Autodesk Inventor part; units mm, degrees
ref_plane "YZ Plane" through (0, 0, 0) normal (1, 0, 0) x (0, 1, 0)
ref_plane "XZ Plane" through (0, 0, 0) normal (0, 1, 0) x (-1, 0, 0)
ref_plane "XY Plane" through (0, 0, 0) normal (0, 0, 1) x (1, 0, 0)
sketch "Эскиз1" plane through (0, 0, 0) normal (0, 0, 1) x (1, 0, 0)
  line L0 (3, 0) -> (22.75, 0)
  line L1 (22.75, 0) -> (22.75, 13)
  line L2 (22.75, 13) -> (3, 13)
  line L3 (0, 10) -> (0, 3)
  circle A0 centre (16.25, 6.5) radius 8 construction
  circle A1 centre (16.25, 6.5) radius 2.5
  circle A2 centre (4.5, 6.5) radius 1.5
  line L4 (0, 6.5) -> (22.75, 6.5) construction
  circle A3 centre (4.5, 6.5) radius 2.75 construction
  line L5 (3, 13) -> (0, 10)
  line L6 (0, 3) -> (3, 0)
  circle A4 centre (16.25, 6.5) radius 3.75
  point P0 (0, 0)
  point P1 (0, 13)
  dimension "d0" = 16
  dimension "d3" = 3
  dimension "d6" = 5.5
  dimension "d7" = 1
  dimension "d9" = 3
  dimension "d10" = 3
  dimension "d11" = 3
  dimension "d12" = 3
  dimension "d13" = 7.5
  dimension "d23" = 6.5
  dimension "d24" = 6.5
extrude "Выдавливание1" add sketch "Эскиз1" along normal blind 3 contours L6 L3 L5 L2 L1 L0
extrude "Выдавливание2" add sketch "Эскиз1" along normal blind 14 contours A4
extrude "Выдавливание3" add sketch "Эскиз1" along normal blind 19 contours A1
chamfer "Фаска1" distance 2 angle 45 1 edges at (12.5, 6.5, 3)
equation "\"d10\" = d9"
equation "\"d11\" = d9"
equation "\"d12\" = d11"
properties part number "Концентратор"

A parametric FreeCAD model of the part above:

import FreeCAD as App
import Part
import Sketcher
Q = App.Units.Quantity


def edges_at(feature, points):
    """Names of the edges that pass closest to the given points."""
    edges = feature.Shape.Edges
    near = lambda p: min(range(len(edges)), key=lambda i: edges[i].distToShape(Part.Vertex(*p))[0])
    return sorted({f"Edge{near(p) + 1}" for p in points})


def add_polygon(sketch, points):
    """Adds a closed chain of lines whose ends are joined by coincident constraints."""
    first, n = sketch.GeometryCount, len(points)
    for a, b in zip(points, points[1:] + points[:1]):
        sketch.addGeometry(Part.LineSegment(App.Vector(*a, 0), App.Vector(*b, 0)), False)
    for i in range(n):
        sketch.addConstraint(Sketcher.Constraint("Coincident", first + i, 2, first + (i + 1) % n, 1))

doc = App.newDocument("Part")
body = doc.addObject("PartDesign::Body", "Body")

# Sketch on XY plane
sketch1 = body.newObject("Sketcher::SketchObject", "Sketch")
sketch1.AttachmentSupport = (doc.getObject("XY_Plane"), [""])
sketch1.MapMode = "FlatFace"
add_polygon(sketch1, [(0, 3), (3, 0), (22.8, 0), (22.8, 13), (3, 13), (0, 10)])  # lines 0-5
sketch1.addGeometry(Part.Circle(App.Vector(4.5, 6.5, 0), App.Vector(0, 0, 1), 1.5), False)  # 6
sketch1.addGeometry(Part.Circle(App.Vector(16.2, 6.5, 0), App.Vector(0, 0, 1), 3.8), False)  # 7
sketch1.addConstraint(Sketcher.Constraint("Horizontal", 1))
sketch1.addConstraint(Sketcher.Constraint("Vertical", 2))
sketch1.addConstraint(Sketcher.Constraint("Horizontal", 3))
sketch1.addConstraint(Sketcher.Constraint("Vertical", 5))
sketch1.addConstraint(Sketcher.Constraint("PointOnObject", 0, 2, -1))
sketch1.addConstraint(Sketcher.Constraint("PointOnObject", 4, 2, -2))
sketch1.addConstraint(Sketcher.Constraint("Perpendicular", 0, 4))
sketch1.addConstraint(Sketcher.Constraint("Horizontal", 6, 3, 7, 3))
sketch1.addConstraint(Sketcher.Constraint("Vertical", 0, 2, 3, 2))
sketch1.addConstraint(Sketcher.Constraint("Equal", 0, 4))
sketch1.addConstraint(Sketcher.Constraint("Diameter", 6, Q("3 mm")))
sketch1.addConstraint(Sketcher.Constraint("Diameter", 7, Q("7.5 mm")))
sketch1.addConstraint(Sketcher.Constraint("DistanceX", -1, 1, 0, 2, Q("3 mm")))
sketch1.addConstraint(Sketcher.Constraint("DistanceY", -1, 1, 6, 3, Q("6.5 mm")))
sketch1.addConstraint(Sketcher.Constraint("DistanceX", 7, 3, 1, 2, Q("6.5 mm")))
sketch1.addConstraint(Sketcher.Constraint("DistanceY", 7, 3, 2, 2, Q("6.5 mm")))
sketch1.addConstraint(Sketcher.Constraint("DistanceX", 1, 1, 1, 2, Q("19.75 mm")))
sketch1.addConstraint(Sketcher.Constraint("DistanceX", -1, 1, 6, 3, Q("4.5 mm")))
pad1 = body.newObject("PartDesign::Pad", "Pad")
pad1.Profile = sketch1
pad1.Length = 3

# Sketch on XY plane
sketch2 = body.newObject("Sketcher::SketchObject", "Sketch001")
sketch2.AttachmentSupport = (doc.getObject("XY_Plane"), [""])
sketch2.MapMode = "FlatFace"
sketch2.addGeometry(Part.Circle(App.Vector(16.2, 6.5, 0), App.Vector(0, 0, 1), 3.8), False)
sketch2.addGeometry(Part.Circle(App.Vector(16.2, 6.5, 0), App.Vector(0, 0, 1), 2.5), False)
sketch2.addConstraint(Sketcher.Constraint("Coincident", 1, 3, 0, 3))
sketch2.addConstraint(Sketcher.Constraint("Diameter", 0, Q("7.5 mm")))
sketch2.addConstraint(Sketcher.Constraint("Diameter", 1, Q("5 mm")))
sketch2.addConstraint(Sketcher.Constraint("DistanceY", -1, 1, 0, 3, Q("6.5 mm")))
sketch2.addConstraint(Sketcher.Constraint("DistanceX", -1, 1, 0, 3, Q("16.25 mm")))
pad2 = body.newObject("PartDesign::Pad", "Pad001")
pad2.Profile = sketch2
pad2.Length = 14

# Sketch on XY plane
sketch3 = body.newObject("Sketcher::SketchObject", "Sketch002")
sketch3.AttachmentSupport = (doc.getObject("XY_Plane"), [""])
sketch3.MapMode = "FlatFace"
sketch3.addGeometry(Part.Circle(App.Vector(16.2, 6.5, 0), App.Vector(0, 0, 1), 2.5), False)
sketch3.addConstraint(Sketcher.Constraint("Diameter", 0, Q("5 mm")))
sketch3.addConstraint(Sketcher.Constraint("DistanceY", -1, 1, 0, 3, Q("6.5 mm")))
sketch3.addConstraint(Sketcher.Constraint("DistanceX", -1, 1, 0, 3, Q("16.25 mm")))
pad3 = body.newObject("PartDesign::Pad", "Pad002")
pad3.Profile = sketch3
pad3.Length = 19
doc.recompute()

chamfer = body.newObject("PartDesign::Chamfer", "Chamfer")
chamfer.Base = (pad3, edges_at(pad3, [(12.5, 6.5, 3)]))
chamfer.Size = 2

doc.recompute()
